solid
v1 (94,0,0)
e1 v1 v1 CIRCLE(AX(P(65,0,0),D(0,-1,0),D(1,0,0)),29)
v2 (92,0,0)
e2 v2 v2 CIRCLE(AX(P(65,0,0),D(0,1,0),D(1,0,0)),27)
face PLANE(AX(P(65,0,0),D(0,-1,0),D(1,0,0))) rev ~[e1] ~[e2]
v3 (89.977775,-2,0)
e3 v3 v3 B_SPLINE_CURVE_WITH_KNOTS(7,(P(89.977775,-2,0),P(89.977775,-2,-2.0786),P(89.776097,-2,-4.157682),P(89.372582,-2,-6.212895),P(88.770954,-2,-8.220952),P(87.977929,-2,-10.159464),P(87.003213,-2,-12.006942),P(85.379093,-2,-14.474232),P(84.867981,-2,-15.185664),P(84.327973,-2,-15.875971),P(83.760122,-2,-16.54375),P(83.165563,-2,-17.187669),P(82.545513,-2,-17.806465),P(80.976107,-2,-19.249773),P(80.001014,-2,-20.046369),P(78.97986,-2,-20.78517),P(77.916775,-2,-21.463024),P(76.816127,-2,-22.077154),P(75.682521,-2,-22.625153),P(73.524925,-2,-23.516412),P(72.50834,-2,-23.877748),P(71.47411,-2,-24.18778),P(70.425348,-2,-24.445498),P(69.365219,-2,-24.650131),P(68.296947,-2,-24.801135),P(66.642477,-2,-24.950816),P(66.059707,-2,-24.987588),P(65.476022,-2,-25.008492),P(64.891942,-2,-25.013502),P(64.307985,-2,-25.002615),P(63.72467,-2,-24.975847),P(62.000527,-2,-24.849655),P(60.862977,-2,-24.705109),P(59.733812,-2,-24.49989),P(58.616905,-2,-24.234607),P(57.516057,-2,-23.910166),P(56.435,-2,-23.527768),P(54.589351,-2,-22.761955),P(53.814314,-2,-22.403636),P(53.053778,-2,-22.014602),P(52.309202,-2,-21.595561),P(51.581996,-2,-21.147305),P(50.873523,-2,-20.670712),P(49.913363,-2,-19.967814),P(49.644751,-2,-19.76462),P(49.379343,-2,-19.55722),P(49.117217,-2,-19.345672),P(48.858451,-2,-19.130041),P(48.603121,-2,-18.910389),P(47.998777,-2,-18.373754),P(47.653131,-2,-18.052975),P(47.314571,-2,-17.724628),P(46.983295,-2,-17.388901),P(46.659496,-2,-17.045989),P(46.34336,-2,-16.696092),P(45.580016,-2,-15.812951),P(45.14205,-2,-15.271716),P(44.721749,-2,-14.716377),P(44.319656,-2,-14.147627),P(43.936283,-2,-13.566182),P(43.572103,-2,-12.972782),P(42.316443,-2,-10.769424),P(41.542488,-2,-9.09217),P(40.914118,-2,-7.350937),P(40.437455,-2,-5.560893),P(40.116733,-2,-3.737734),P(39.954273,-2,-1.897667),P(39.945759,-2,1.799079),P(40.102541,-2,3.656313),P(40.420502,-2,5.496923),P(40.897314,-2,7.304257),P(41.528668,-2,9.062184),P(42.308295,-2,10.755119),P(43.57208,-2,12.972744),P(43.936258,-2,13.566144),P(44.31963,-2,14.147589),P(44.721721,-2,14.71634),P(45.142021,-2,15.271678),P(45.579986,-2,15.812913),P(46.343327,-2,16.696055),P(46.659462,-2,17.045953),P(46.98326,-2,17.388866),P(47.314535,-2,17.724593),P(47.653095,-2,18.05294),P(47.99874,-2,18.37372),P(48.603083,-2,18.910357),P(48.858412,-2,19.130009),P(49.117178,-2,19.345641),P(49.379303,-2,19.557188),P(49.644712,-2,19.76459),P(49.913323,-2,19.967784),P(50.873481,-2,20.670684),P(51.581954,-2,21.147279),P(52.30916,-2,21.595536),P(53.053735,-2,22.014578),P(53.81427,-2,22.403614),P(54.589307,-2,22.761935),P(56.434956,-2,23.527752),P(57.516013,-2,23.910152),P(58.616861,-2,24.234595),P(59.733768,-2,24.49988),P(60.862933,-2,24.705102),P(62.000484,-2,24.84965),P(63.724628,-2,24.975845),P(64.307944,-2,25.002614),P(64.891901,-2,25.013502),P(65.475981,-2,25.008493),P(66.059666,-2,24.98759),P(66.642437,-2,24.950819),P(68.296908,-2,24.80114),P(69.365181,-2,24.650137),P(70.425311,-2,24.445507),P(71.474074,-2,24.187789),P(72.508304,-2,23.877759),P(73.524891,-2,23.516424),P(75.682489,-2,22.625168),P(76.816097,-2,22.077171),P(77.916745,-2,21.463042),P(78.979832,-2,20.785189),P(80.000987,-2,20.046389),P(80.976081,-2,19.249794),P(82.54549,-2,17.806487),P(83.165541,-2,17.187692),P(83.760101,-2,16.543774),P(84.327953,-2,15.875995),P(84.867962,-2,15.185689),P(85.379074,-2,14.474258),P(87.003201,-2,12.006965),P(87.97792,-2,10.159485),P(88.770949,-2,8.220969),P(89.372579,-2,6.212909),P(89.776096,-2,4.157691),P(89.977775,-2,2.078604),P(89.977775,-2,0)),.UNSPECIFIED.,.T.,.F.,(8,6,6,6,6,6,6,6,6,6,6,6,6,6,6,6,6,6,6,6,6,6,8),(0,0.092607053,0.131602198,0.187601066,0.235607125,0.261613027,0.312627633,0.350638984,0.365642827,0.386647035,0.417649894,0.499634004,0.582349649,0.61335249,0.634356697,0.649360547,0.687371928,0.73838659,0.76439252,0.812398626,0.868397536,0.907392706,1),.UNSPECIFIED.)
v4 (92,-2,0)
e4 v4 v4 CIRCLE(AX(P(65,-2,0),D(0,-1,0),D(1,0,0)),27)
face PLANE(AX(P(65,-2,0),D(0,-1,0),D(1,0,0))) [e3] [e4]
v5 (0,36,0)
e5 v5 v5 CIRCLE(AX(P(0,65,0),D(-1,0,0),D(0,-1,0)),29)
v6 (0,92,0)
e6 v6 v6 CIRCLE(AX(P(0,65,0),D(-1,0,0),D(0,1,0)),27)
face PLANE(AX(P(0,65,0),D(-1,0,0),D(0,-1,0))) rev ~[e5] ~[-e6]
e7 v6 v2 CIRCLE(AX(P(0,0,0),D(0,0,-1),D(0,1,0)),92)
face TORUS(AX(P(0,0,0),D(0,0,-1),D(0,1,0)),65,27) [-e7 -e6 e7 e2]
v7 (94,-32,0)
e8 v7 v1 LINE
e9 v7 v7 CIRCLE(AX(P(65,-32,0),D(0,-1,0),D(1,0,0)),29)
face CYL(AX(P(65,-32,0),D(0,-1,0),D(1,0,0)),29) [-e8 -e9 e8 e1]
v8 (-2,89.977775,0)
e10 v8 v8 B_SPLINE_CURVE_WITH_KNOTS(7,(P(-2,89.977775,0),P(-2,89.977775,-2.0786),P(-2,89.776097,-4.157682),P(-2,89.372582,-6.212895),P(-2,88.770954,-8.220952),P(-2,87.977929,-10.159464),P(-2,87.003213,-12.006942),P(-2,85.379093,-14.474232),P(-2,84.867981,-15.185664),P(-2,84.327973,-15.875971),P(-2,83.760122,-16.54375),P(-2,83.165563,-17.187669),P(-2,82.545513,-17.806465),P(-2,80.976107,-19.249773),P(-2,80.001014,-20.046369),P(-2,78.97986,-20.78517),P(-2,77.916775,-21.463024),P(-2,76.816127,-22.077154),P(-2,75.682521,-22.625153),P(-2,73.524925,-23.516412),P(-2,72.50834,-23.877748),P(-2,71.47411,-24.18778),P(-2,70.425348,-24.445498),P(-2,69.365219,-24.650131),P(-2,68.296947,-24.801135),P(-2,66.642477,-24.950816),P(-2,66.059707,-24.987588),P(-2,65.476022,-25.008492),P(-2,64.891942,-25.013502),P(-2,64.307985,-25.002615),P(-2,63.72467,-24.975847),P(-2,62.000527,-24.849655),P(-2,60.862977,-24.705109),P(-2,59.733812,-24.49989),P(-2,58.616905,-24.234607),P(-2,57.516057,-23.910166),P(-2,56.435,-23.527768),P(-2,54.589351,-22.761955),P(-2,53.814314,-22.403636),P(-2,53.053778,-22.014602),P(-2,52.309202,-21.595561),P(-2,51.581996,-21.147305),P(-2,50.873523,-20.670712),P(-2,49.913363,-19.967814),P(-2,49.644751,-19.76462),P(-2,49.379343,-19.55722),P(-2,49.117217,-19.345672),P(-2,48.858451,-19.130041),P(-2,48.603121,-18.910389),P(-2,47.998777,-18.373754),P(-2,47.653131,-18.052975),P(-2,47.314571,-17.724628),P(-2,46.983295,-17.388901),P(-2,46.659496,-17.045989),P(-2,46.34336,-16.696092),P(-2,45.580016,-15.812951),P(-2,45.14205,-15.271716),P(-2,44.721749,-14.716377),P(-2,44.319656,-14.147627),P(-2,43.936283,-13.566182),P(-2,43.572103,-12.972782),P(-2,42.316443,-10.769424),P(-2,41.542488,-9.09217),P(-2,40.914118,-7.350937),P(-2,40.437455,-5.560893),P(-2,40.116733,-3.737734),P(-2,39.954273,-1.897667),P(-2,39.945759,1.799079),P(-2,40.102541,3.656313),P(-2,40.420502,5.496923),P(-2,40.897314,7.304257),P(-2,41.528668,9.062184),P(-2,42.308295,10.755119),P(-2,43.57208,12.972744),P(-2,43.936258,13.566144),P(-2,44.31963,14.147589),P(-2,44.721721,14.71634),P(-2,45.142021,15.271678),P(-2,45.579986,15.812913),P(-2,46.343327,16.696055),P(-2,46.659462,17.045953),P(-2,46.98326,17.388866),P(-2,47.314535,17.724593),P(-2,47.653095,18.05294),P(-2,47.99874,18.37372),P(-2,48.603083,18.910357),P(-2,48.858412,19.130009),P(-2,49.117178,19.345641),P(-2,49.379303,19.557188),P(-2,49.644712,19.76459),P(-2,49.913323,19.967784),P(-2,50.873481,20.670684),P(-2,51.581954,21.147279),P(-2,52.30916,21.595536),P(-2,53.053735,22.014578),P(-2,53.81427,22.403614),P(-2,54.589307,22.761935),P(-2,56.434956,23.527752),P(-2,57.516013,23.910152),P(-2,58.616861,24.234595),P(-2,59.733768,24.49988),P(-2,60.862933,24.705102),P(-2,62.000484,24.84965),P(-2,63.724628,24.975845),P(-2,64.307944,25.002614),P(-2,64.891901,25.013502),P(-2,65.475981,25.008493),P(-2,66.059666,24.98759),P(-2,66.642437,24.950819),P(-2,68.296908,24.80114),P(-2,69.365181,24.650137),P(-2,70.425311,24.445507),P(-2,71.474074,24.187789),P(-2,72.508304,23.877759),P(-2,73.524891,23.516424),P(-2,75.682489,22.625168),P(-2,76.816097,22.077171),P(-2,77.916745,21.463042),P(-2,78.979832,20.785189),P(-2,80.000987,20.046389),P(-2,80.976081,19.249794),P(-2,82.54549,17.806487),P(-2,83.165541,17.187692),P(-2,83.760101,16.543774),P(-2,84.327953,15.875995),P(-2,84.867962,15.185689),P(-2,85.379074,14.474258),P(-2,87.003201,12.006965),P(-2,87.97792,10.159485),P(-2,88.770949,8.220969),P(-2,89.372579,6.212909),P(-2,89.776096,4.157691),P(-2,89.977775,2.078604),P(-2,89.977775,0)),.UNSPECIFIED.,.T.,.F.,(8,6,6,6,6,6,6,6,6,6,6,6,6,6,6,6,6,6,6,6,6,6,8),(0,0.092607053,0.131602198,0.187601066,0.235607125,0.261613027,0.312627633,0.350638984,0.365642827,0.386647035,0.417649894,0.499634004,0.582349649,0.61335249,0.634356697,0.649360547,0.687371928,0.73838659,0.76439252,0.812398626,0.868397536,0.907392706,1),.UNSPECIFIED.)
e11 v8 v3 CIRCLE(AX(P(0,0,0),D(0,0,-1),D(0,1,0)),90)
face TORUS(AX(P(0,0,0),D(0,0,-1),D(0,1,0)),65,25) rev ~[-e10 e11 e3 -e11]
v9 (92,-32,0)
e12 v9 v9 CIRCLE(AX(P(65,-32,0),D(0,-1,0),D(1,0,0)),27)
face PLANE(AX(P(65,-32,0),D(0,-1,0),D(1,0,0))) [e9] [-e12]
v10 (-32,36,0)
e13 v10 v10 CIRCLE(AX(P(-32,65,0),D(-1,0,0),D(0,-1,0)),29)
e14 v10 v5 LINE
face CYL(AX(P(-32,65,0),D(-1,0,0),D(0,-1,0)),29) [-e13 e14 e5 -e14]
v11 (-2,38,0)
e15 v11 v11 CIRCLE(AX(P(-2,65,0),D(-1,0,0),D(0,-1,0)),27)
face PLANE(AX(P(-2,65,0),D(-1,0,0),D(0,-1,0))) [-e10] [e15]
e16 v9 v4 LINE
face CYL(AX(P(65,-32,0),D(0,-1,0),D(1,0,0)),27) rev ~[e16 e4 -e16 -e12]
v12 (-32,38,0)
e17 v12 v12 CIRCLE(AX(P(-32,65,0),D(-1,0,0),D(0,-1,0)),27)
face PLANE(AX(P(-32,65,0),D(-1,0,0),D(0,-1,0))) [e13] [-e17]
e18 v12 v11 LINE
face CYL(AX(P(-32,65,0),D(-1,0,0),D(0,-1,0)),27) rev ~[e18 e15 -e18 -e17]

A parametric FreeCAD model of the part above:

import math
import FreeCAD as App
import Part
import Sketcher
from FreeCAD import Vector


def faces_at(feature, points):
    """Names of the faces that lie closest to the given points."""
    faces = feature.Shape.Faces
    near = lambda p: min(range(len(faces)), key=lambda i: faces[i].distToShape(Part.Vertex(*p))[0])
    return sorted({f"Face{near(p) + 1}" for p in points})

doc = App.newDocument("Part")
body = doc.addObject("PartDesign::Body", "Body")

# Sketch on YZ plane
sketch1 = doc.addObject("Sketcher::SketchObject", "Sketch")
body.addObject(sketch1)
sketch1.AttachmentSupport = (doc.YZ_Plane, [""])
sketch1.MapMode = "FlatFace"
sketch1.AttachmentOffset = App.Placement(Vector(0, 0, -32), App.Rotation())
sketch1.addGeometry(Part.Circle(Vector(65, 0, 0), Vector(0, 0, 1), 27), False)
sketch1.addConstraint([
    Sketcher.Constraint("PointOnObject", 0, 3, -1),
    Sketcher.Constraint("Diameter", 0, 54.0),
    Sketcher.Constraint("DistanceX", -1, 1, 0, 3, 65.0),
])

# Sketch on XY plane
sketch2 = doc.addObject("Sketcher::SketchObject", "Sketch001")
body.addObject(sketch2)
sketch2.AttachmentSupport = (doc.XY_Plane, [""])
sketch2.MapMode = "FlatFace"
sketch2.addGeometry([
    Part.LineSegment(Vector(-32, 65, 0), Vector(0, 65, 0)),
    Part.ArcOfCircle(Part.Circle(Vector(0, 0, 0), Vector(0, 0, 1), 65), math.radians(0), math.radians(90)),
    Part.LineSegment(Vector(65, 0, 0), Vector(65, -32, 0)),
], False)
sketch2.addConstraint([
    Sketcher.Constraint("Tangent", 0, 2, 1, 2),
    Sketcher.Constraint("Tangent", 1, 1, 2, 1),
    Sketcher.Constraint("Horizontal", 0),
    Sketcher.Constraint("Vertical", 2),
    Sketcher.Constraint("Coincident", 1, 3, -1, 1),
    Sketcher.Constraint("Equal", 0, 2),
    Sketcher.Constraint("Radius", 1, 65.0),
    Sketcher.Constraint("DistanceX", 0, 1, 0, 2, 32.0),
])
doc.recompute()

additivepipe = doc.addObject("PartDesign::AdditivePipe", "AdditivePipe")
body.addObject(additivepipe)
additivepipe.Profile = sketch1
additivepipe.Spine = (sketch2, ["Edge1", "Edge2", "Edge3"])

# Sketch on YZ plane
sketch3 = doc.addObject("Sketcher::SketchObject", "Sketch002")
body.addObject(sketch3)
sketch3.AttachmentSupport = (doc.YZ_Plane, [""])
sketch3.MapMode = "FlatFace"
sketch3.AttachmentOffset = App.Placement(Vector(0, 0, -32), App.Rotation())
sketch3.addGeometry([
    Part.Circle(Vector(65, 0, 0), Vector(0, 0, 1), 29),
    Part.Circle(Vector(65, 0, 0), Vector(0, 0, 1), 27),
], False)
sketch3.addConstraint([
    Sketcher.Constraint("Coincident", 1, 3, 0, 3),
    Sketcher.Constraint("PointOnObject", 0, 3, -1),
    Sketcher.Constraint("Diameter", 0, 58.0),
    Sketcher.Constraint("Diameter", 1, 54.0),
    Sketcher.Constraint("DistanceX", -1, 1, 0, 3, 65.0),
])
pad1 = doc.addObject("PartDesign::Pad", "Pad")
body.addObject(pad1)
pad1.Profile = sketch3
pad1.Length = 32

# Sketch on XZ plane
sketch4 = doc.addObject("Sketcher::SketchObject", "Sketch003")
body.addObject(sketch4)
sketch4.AttachmentSupport = (doc.XZ_Plane, [""])
sketch4.MapMode = "FlatFace"
sketch4.AttachmentOffset = App.Placement(Vector(0, 0, 32), App.Rotation())
sketch4.addGeometry(Part.Circle(Vector(65, 0, 0), Vector(0, 0, 1), 29), False)
sketch4.addConstraint([
    Sketcher.Constraint("PointOnObject", 0, 3, -1),
    Sketcher.Constraint("Diameter", 0, 58.0),
    Sketcher.Constraint("DistanceX", -1, 1, 0, 3, 65.0),
])
pad2 = doc.addObject("PartDesign::Pad", "Pad001")
body.addObject(pad2)
pad2.Profile = sketch4
pad2.Length = 32
pad2.Reversed = True
doc.recompute()

thickness = doc.addObject("PartDesign::Thickness", "Thickness")
body.addObject(thickness)
thickness.Base = (pad2, faces_at(pad2, [(65, -32, 0), (-32, 65, 0)]))
thickness.Value = 2
thickness.Reversed = True
thickness.Join = "Intersection"

doc.recompute()
